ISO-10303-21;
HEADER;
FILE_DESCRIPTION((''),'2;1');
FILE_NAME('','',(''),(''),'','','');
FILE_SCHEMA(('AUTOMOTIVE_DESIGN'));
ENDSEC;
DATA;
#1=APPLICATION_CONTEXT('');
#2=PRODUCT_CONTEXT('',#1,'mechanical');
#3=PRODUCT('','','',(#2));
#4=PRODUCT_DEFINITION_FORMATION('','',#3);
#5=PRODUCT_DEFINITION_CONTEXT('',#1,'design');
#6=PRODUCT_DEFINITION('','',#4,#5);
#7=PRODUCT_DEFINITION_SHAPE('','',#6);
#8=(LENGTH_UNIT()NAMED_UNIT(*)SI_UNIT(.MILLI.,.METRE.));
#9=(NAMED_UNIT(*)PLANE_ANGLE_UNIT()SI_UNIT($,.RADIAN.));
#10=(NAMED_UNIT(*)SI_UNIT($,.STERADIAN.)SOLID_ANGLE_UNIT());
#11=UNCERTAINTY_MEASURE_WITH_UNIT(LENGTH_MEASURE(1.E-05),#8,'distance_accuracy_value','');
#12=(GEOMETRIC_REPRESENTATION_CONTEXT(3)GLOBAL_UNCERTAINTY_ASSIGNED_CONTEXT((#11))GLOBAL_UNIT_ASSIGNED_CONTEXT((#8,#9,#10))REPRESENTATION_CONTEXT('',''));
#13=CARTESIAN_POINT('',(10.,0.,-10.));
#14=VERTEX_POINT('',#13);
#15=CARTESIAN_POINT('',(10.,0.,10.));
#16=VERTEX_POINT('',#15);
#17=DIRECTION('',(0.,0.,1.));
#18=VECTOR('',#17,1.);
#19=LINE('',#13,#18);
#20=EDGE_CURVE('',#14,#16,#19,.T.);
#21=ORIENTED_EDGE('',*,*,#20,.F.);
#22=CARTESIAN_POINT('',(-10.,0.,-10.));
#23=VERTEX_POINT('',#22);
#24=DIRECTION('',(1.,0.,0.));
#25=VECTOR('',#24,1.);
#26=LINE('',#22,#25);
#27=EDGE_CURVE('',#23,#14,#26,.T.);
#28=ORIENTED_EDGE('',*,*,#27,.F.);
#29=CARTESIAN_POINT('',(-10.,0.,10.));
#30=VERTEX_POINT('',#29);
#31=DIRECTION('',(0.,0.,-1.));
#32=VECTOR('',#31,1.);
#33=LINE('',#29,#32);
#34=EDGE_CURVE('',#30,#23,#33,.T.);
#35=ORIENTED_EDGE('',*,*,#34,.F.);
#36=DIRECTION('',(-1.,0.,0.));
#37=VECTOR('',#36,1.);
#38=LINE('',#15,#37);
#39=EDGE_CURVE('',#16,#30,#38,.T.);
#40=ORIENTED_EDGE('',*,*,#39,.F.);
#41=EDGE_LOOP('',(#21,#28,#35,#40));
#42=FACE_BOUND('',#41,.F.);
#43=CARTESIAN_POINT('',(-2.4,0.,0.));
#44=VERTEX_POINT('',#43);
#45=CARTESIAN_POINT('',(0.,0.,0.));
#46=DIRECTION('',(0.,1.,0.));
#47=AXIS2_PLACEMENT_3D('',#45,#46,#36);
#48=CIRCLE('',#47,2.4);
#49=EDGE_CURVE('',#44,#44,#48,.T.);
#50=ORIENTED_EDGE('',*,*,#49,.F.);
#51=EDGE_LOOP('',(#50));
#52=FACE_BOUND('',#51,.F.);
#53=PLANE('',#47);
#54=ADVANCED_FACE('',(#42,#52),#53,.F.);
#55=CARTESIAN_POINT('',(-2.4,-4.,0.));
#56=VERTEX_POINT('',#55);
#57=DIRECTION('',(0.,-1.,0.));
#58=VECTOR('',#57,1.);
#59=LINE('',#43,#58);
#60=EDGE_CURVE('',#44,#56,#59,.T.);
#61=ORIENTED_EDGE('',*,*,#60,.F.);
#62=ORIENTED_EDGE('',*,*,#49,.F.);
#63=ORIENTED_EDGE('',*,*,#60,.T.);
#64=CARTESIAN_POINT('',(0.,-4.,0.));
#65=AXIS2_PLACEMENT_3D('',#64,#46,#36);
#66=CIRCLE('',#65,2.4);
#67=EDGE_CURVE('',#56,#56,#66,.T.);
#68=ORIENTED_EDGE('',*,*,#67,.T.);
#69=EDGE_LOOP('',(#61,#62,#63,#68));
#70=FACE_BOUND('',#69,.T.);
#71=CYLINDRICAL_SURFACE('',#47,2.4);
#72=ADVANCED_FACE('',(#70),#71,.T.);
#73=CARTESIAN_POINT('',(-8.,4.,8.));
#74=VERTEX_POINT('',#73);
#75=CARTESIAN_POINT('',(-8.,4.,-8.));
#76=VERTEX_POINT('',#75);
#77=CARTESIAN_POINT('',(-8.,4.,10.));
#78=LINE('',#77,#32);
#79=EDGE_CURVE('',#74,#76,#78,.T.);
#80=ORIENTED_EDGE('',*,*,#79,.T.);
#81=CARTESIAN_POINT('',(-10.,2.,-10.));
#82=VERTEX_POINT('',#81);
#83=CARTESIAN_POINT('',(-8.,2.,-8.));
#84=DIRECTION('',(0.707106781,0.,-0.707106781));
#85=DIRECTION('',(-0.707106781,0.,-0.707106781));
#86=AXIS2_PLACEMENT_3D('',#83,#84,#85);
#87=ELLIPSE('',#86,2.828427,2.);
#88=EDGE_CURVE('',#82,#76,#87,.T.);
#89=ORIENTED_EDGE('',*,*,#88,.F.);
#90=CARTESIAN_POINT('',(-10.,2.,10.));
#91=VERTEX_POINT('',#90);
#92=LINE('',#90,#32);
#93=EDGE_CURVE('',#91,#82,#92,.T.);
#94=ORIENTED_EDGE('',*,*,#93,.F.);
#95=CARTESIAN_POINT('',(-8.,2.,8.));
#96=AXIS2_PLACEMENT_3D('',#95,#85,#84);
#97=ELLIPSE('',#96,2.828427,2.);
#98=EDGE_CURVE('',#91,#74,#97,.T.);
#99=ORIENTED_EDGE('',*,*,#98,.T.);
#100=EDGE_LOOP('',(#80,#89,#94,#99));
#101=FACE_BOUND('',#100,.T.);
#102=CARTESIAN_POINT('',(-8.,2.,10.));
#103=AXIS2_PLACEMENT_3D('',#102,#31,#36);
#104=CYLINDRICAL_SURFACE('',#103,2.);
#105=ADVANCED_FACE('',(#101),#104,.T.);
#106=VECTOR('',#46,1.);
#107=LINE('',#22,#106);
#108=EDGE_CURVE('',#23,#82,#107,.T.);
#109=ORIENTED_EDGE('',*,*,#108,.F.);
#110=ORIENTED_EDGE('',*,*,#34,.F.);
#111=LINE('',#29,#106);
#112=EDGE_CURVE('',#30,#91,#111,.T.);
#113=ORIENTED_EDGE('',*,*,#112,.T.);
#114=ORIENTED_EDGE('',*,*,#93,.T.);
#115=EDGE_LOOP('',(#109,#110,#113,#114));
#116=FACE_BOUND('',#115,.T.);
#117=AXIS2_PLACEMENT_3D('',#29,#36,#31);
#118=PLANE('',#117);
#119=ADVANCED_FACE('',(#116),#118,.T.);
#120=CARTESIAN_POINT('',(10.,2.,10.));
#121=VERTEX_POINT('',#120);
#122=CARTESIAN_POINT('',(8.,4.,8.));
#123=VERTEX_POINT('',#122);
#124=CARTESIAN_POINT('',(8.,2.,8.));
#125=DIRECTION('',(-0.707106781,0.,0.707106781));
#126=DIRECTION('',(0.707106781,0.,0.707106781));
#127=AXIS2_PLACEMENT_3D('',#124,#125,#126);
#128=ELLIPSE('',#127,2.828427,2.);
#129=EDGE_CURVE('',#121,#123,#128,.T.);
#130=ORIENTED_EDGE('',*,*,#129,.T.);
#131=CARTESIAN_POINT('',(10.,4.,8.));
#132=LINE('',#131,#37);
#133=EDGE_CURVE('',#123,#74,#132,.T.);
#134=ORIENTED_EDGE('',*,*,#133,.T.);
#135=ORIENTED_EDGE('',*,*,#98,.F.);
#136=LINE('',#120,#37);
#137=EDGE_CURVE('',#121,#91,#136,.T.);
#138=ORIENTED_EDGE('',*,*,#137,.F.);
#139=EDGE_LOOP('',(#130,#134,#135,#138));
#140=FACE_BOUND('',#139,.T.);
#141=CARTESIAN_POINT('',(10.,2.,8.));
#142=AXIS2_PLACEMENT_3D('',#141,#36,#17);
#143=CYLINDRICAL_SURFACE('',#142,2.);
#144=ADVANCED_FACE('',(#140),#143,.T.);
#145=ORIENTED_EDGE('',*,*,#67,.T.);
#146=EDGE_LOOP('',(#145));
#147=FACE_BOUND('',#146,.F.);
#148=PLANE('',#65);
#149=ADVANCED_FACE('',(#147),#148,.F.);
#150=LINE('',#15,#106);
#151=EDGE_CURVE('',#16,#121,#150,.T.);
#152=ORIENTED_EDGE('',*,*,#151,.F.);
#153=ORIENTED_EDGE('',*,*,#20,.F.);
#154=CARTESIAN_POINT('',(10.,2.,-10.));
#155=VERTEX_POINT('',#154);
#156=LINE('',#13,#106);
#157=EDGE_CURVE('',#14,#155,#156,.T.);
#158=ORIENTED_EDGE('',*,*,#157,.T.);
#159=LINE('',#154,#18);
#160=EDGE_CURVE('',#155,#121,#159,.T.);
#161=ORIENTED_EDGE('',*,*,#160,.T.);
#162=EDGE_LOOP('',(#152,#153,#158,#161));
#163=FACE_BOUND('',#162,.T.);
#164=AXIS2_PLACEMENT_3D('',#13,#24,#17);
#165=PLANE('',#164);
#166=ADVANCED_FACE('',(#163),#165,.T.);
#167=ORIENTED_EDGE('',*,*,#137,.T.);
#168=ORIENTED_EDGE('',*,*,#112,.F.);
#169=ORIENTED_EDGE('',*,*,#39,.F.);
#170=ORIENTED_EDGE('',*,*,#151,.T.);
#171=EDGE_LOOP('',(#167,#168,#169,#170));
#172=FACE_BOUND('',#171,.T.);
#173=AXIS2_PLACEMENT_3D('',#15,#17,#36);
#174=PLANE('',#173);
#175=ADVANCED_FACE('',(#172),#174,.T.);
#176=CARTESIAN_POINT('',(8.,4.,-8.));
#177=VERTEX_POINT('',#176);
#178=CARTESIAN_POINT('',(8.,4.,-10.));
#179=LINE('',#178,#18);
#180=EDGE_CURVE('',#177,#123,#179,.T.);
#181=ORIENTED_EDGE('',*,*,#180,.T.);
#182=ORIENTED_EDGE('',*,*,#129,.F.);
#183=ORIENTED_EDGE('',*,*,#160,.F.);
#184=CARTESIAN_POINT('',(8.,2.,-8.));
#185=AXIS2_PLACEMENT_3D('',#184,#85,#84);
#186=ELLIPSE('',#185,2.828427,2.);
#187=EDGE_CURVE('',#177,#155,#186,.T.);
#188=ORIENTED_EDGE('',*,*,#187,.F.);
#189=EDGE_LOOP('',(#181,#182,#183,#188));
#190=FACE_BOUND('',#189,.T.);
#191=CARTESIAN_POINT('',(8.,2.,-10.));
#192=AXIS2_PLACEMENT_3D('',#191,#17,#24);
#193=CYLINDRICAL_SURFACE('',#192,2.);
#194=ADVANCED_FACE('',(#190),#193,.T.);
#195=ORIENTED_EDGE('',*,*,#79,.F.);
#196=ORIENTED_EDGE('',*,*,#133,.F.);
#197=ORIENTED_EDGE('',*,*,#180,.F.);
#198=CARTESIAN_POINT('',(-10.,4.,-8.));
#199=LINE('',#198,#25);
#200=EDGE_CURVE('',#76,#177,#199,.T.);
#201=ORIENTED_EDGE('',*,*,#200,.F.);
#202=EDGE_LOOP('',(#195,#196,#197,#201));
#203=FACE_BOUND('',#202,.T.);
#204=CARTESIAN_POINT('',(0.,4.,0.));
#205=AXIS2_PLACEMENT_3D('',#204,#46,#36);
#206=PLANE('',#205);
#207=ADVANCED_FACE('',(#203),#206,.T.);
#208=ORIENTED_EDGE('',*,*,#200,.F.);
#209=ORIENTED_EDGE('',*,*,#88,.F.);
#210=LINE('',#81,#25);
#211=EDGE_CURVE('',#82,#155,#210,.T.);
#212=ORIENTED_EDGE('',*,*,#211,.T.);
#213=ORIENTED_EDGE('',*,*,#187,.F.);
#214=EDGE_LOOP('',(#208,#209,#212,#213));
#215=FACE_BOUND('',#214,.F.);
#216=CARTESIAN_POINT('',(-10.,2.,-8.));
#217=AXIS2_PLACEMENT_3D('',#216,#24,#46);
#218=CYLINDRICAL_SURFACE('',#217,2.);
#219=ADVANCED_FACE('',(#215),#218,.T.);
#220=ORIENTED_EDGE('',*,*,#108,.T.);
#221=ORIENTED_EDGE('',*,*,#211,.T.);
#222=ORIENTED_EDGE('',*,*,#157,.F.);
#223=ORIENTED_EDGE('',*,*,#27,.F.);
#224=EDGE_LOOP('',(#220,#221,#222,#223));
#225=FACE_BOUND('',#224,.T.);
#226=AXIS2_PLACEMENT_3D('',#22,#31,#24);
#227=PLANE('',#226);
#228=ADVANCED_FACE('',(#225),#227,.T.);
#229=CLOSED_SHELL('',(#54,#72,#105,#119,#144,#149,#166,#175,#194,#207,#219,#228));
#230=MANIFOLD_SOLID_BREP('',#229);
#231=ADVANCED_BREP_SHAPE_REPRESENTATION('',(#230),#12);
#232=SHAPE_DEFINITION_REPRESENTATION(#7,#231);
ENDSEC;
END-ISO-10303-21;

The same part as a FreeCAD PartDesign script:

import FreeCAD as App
import Part
import Sketcher

V = App.Vector


def edges_at(feature, points):
    """Names of the edges that pass closest to the given points."""
    edges = feature.Shape.Edges
    near = lambda p: min(range(len(edges)), key=lambda i: edges[i].distToShape(Part.Vertex(*p))[0])
    return sorted({f"Edge{near(p) + 1}" for p in points})


def add_polygon(sketch, points):
    """Adds a closed chain of lines whose ends are joined by coincident constraints."""
    first, n = sketch.GeometryCount, len(points)
    for a, b in zip(points, points[1:] + points[:1]):
        sketch.addGeometry(Part.LineSegment(App.Vector(*a, 0), App.Vector(*b, 0)), False)
    for i in range(n):
        sketch.addConstraint(Sketcher.Constraint("Coincident", first + i, 2, first + (i + 1) % n, 1))

doc = App.newDocument("Part")
body = doc.addObject("PartDesign::Body", "Body")

sketch1 = body.newObject("Sketcher::SketchObject", "Sketch")
sketch1.AttachmentSupport = (doc.getObject("XZ_Plane"), [""])
sketch1.MapMode = "FlatFace"
sketch1.addGeometry(Part.Circle(V(0, 0, 0), V(0, 0, 1), 2.4), False)
sketch1.addConstraint([
    Sketcher.Constraint("Coincident", 0, 3, -1, 1),
    Sketcher.Constraint("Diameter", 0, 4.8),
])
pad1 = body.newObject("PartDesign::Pad", "Pad")
pad1.Profile = sketch1
pad1.Length = 8
pad1.Midplane = True

sketch2 = body.newObject("Sketcher::SketchObject", "Sketch001")
sketch2.AttachmentSupport = (doc.getObject("XZ_Plane"), [""])
sketch2.MapMode = "FlatFace"
add_polygon(sketch2, [(-10, 10), (10, 10), (10, -10), (-10, -10)])
sketch2.addGeometry(Part.Circle(V(0, 0, 0), V(0, 0, 1), 2.4), False)
sketch2.addConstraint([
    Sketcher.Constraint("Horizontal", 0),
    Sketcher.Constraint("Vertical", 1),
    Sketcher.Constraint("Horizontal", 2),
    Sketcher.Constraint("Vertical", 3),
    Sketcher.Constraint("Coincident", 4, 3, -1, 1),
    Sketcher.Constraint("Symmetric", 0, 2, 2, 2, -1, 1),
    Sketcher.Constraint("Equal", 2, 1),
    Sketcher.Constraint("Diameter", 4, 4.8),
    Sketcher.Constraint("DistanceX", 0, 1, 0, 2, 20.0),
])
pad2 = body.newObject("PartDesign::Pad", "Pad001")
pad2.Profile = sketch2
pad2.Length = 4
pad2.Reversed = True
doc.recompute()

fillet = body.newObject("PartDesign::Fillet", "Fillet")
fillet.Base = (pad2, edges_at(pad2, [
    (-10, 4, 0),
    (0, 4, -10),
    (10, 4, 0),
    (0, 4, 10),
]))
fillet.Radius = 2

doc.recompute()
